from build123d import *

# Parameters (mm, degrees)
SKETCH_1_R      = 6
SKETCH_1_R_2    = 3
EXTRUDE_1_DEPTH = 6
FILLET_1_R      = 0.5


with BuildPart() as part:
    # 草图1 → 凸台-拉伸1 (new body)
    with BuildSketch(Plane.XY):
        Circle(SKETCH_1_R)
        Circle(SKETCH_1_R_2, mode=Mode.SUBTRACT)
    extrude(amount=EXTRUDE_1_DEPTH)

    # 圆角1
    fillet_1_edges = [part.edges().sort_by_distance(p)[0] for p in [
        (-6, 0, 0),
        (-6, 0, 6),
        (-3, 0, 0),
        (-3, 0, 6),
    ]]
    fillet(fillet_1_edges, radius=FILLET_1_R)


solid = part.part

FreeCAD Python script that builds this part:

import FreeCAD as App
import Part
import Sketcher


def edges_at(feature, points):
    """Names of the edges that pass closest to the given points."""
    edges = feature.Shape.Edges
    near = lambda p: min(range(len(edges)), key=lambda i: edges[i].distToShape(Part.Vertex(*p))[0])
    return sorted({f"Edge{near(p) + 1}" for p in points})

doc = App.newDocument("Part")
params = doc.addObject("Spreadsheet::Sheet", "Params")
for row, (alias, value) in enumerate([
    ("sketch1_diameter", "12 mm"),
    ("sketch1_diameter2", "6 mm"),
    ("pad1_length", "6 mm"),
    ("fillet_radius", "0.5 mm"),
], start=1):
    params.set(f"A{row}", alias)
    params.set(f"B{row}", "=" + value)
    params.setAlias(f"B{row}", alias)

body = doc.addObject("PartDesign::Body", "Body")

# Sketch on XY plane
sketch1 = body.newObject("Sketcher::SketchObject", "Sketch")
sketch1.AttachmentSupport = (doc.getObject("XY_Plane"), [""])
sketch1.MapMode = "FlatFace"
sketch1.addGeometry(Part.Circle(App.Vector(0, 0, 0), App.Vector(0, 0, 1), 6), False)
sketch1.addGeometry(Part.Circle(App.Vector(0, 0, 0), App.Vector(0, 0, 1), 3), False)
sketch1.addConstraint(Sketcher.Constraint("Coincident", 0, 3, -1, 1))
sketch1.addConstraint(Sketcher.Constraint("Coincident", 1, 3, -1, 1))
sketch1.addConstraint(Sketcher.Constraint("Diameter", 0, 12.0))
sketch1.addConstraint(Sketcher.Constraint("Diameter", 1, 6.0))
sketch1.setExpression("Constraints[2]", "Params.sketch1_diameter")
sketch1.setExpression("Constraints[3]", "Params.sketch1_diameter2")
pad1 = body.newObject("PartDesign::Pad", "Pad")
pad1.Profile = sketch1
pad1.setExpression("Length", "Params.pad1_length")
doc.recompute()

fillet = body.newObject("PartDesign::Fillet", "Fillet")
fillet.Base = (pad1, edges_at(pad1, [
    (-6, 0, 0),
    (-6, 0, 6),
    (-3, 0, 0),
    (-3, 0, 6),
]))
fillet.setExpression("Radius", "Params.fillet_radius")

doc.recompute()
